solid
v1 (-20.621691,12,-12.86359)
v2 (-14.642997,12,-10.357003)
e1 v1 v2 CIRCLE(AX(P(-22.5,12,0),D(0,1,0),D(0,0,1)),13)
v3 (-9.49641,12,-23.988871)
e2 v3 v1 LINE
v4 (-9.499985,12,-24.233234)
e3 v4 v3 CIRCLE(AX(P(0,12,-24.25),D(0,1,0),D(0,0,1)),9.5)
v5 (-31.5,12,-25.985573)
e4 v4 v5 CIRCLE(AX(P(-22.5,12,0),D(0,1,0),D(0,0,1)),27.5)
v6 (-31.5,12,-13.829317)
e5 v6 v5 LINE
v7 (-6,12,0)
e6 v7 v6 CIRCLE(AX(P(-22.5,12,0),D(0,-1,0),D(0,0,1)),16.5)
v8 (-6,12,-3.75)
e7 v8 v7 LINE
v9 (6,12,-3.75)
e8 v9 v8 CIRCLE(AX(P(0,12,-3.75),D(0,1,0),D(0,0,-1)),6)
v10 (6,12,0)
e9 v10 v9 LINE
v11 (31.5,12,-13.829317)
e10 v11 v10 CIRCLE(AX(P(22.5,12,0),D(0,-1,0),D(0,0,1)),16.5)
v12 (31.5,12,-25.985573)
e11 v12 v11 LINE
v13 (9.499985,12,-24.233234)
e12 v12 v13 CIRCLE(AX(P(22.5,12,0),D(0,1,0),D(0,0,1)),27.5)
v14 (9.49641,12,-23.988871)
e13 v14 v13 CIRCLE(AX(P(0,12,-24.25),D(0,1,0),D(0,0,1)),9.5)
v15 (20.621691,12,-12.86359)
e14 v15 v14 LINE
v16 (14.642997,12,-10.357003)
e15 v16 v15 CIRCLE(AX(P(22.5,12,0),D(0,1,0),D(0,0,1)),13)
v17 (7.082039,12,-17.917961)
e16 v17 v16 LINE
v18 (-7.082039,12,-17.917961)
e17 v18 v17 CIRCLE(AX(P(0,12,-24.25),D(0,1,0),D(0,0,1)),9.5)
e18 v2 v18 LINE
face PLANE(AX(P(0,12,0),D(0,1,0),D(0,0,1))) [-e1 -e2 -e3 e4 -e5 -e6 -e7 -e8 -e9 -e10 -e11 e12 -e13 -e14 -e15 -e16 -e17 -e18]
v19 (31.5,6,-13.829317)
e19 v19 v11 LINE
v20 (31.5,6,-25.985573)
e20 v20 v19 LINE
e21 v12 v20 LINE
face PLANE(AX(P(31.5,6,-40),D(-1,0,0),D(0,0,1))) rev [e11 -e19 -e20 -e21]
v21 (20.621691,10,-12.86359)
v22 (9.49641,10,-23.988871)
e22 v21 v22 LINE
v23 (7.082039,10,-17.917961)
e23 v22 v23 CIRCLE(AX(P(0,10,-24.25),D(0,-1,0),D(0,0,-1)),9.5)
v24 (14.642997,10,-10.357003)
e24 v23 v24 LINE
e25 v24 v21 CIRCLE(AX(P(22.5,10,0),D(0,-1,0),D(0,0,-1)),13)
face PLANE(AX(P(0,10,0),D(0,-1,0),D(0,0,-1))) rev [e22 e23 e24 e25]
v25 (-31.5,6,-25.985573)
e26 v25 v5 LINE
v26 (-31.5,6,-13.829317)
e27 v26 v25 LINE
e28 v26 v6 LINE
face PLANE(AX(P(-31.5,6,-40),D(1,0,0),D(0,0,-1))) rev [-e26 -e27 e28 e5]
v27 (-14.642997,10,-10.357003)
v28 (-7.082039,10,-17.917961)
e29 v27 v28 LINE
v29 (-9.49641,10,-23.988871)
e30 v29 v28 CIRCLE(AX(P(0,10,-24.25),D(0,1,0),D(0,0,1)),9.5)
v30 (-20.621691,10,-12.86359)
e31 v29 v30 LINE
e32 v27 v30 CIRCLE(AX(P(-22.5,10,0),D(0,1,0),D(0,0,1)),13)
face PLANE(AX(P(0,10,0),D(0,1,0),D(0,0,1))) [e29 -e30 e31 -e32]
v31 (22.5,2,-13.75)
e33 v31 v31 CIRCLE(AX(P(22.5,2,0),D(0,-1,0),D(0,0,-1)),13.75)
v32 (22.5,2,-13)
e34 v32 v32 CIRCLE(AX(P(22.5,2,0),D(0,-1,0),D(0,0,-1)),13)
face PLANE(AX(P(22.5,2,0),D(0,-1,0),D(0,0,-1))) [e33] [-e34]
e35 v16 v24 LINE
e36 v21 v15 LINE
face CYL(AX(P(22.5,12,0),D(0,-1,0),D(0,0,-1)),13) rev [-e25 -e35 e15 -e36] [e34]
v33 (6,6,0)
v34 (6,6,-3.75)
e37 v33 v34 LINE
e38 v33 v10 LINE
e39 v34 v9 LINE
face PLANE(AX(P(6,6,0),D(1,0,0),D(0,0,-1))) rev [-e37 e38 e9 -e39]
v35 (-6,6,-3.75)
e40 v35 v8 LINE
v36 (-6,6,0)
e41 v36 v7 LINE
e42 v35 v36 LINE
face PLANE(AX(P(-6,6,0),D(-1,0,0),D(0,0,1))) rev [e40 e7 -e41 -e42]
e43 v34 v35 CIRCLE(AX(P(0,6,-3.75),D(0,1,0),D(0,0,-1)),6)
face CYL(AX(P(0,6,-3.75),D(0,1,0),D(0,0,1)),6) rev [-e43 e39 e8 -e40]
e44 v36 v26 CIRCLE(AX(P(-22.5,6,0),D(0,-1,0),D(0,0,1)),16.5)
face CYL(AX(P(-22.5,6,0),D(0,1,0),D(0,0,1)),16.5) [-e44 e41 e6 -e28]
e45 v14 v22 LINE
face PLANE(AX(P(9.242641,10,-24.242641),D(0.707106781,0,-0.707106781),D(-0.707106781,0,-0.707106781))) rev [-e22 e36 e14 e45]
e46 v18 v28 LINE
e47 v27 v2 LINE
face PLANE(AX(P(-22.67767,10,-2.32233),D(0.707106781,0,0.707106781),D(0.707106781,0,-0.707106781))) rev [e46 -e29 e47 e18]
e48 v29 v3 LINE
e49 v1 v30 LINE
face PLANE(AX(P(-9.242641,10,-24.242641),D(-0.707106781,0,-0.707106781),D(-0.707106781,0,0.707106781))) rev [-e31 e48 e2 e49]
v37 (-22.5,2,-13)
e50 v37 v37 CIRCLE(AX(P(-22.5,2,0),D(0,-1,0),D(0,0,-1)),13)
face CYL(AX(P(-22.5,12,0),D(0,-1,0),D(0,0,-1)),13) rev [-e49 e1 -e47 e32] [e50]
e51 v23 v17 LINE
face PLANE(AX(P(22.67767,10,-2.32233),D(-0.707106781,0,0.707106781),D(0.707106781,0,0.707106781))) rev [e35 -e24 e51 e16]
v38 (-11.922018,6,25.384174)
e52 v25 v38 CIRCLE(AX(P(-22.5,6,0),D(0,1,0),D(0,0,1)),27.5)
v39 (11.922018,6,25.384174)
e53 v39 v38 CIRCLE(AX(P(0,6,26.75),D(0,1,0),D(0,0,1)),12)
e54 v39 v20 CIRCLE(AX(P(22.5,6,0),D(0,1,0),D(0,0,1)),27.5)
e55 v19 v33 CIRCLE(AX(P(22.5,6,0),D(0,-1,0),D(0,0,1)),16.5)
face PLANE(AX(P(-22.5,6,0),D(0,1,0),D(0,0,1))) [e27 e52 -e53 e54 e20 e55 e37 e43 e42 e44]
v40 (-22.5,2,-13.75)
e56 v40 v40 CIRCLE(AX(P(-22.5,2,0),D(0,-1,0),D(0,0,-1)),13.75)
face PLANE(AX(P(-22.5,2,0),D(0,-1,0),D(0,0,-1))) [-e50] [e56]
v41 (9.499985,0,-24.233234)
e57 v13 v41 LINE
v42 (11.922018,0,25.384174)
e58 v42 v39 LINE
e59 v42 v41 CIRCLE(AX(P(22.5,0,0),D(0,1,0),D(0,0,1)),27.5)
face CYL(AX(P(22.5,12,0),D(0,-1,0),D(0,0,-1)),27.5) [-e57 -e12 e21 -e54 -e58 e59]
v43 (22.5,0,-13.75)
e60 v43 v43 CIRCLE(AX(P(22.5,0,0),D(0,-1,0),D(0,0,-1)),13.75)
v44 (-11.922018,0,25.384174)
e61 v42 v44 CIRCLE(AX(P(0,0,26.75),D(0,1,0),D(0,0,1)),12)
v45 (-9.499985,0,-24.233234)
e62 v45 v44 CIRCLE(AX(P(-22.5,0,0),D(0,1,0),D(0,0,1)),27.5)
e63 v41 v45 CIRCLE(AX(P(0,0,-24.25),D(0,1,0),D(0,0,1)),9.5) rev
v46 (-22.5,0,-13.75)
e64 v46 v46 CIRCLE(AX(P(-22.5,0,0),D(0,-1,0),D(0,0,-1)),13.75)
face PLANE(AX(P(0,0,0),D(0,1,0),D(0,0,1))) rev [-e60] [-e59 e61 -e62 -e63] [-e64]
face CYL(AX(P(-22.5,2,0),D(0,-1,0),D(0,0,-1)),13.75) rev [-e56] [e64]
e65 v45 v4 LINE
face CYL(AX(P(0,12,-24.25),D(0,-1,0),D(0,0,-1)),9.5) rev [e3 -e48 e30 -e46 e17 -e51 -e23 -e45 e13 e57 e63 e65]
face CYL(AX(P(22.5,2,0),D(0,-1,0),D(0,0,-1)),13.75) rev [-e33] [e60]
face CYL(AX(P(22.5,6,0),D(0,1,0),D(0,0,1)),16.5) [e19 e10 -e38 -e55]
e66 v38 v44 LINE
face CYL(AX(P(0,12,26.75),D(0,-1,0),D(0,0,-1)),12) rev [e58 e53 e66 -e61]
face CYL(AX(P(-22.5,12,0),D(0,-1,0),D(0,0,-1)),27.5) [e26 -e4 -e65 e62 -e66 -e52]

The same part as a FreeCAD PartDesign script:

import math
import FreeCAD as App
import Part
import Sketcher

V = App.Vector

doc = App.newDocument("Part")
body = doc.addObject("PartDesign::Body", "Body")

sketch1 = doc.addObject("Sketcher::SketchObject", "Sketch")
body.addObject(sketch1)
sketch1.AttachmentSupport = (doc.XZ_Plane, [""])
sketch1.MapMode = "FlatFace"
sketch1.addGeometry(Part.ArcOfCircle(Part.Circle(V(22.5, 0, 0), V(0, 0, 1), 27.5), math.radians(-144.903199), math.radians(144.903199)), False)
sketch1.addGeometry(Part.ArcOfCircle(Part.Circle(V(-22.5, 0, 0), V(0, 0, 1), 27.5), math.radians(35.096801), math.radians(324.903199)), False)
sketch1.addConstraint(Sketcher.Constraint("Coincident", 0, 1, 1, 2))
sketch1.addConstraint(Sketcher.Constraint("Coincident", 1, 1, 0, 2))
sketch1.addConstraint(Sketcher.Constraint("Equal", 0, 1))
sketch1.addConstraint(Sketcher.Constraint("Symmetric", 0, 3, 1, 3, -1, 1))
sketch1.addConstraint(Sketcher.Constraint("PointOnObject", 0, 3, -1))
sketch1.addConstraint(Sketcher.Constraint("Radius", 0, 27.5))
sketch1.addConstraint(Sketcher.Constraint("DistanceX", 1, 3, 0, 3, 45.0))
pad1 = doc.addObject("PartDesign::Pad", "Pad")
body.addObject(pad1)
pad1.Profile = sketch1
pad1.Length = 12
pad1.Reversed = True

sketch2 = doc.addObject("Sketcher::SketchObject", "Sketch001")
body.addObject(sketch2)
sketch2.AttachmentSupport = (doc.XZ_Plane, [""])
sketch2.MapMode = "FlatFace"
sketch2.addGeometry(Part.Circle(V(0, -24.25, 0), V(0, 0, 1), 9.5), False)
sketch2.addGeometry(Part.Circle(V(0, 26.75, 0), V(0, 0, 1), 12), False)
sketch2.addConstraint(Sketcher.Constraint("PointOnObject", 0, 3, -2))
sketch2.addConstraint(Sketcher.Constraint("PointOnObject", 1, 3, -2))
sketch2.addConstraint(Sketcher.Constraint("Diameter", 0, 19.0))
sketch2.addConstraint(Sketcher.Constraint("Diameter", 1, 24.0))
sketch2.addConstraint(Sketcher.Constraint("DistanceY", 0, 3, 1, 3, 51.0))
sketch2.addConstraint(Sketcher.Constraint("DistanceY", 0, 3, -1, 1, 24.25))
pocket1 = doc.addObject("PartDesign::Pocket", "Pocket")
body.addObject(pocket1)
pocket1.Profile = sketch2
pocket1.Type = "ThroughAll"

sketch3 = doc.addObject("Sketcher::SketchObject", "Sketch002")
body.addObject(sketch3)
sketch3.AttachmentSupport = (doc.XZ_Plane, [""])
sketch3.MapMode = "FlatFace"
sketch3.AttachmentOffset = App.Placement(V(0, 0, -12), App.Rotation())
sketch3.addGeometry(Part.LineSegment(V(-6, -3.75, 0), V(-6, 0, 0)), False)
sketch3.addGeometry(Part.ArcOfCircle(Part.Circle(V(-22.5, 0, 0), V(0, 0, 1), 16.5), math.radians(0), math.radians(236.944269)), False)
sketch3.addGeometry(Part.LineSegment(V(-31.5, -13.829317, 0), V(-31.5, -40, 0)), False)
sketch3.addGeometry(Part.LineSegment(V(-31.5, -40, 0), V(-71.5, -40, 0)), False)
sketch3.addGeometry(Part.LineSegment(V(-71.5, -40, 0), V(-71.5, 30, 0)), False)
sketch3.addGeometry(Part.LineSegment(V(-71.5, 30, 0), V(71.5, 30, 0)), False)
sketch3.addGeometry(Part.LineSegment(V(71.5, 30, 0), V(71.5, -40, 0)), False)
sketch3.addGeometry(Part.LineSegment(V(71.5, -40, 0), V(31.5, -40, 0)), False)
sketch3.addGeometry(Part.LineSegment(V(31.5, -40, 0), V(31.5, -13.829317, 0)), False)
sketch3.addGeometry(Part.ArcOfCircle(Part.Circle(V(22.5, 0, 0), V(0, 0, 1), 16.5), math.radians(-56.944269), math.radians(180)), False)
sketch3.addGeometry(Part.LineSegment(V(6, 0, 0), V(6, -3.75, 0)), False)
sketch3.addGeometry(Part.ArcOfCircle(Part.Circle(V(0, -3.75, 0), V(0, 0, 1), 6), math.radians(180), math.radians(360)), False)
sketch3.addConstraint(Sketcher.Constraint("Tangent", 0, 2, 1, 1))
sketch3.addConstraint(Sketcher.Constraint("Coincident", 1, 2, 2, 1))
sketch3.addConstraint(Sketcher.Constraint("Coincident", 2, 2, 3, 1))
sketch3.addConstraint(Sketcher.Constraint("Coincident", 3, 2, 4, 1))
sketch3.addConstraint(Sketcher.Constraint("Coincident", 4, 2, 5, 1))
sketch3.addConstraint(Sketcher.Constraint("Coincident", 5, 2, 6, 1))
sketch3.addConstraint(Sketcher.Constraint("Coincident", 6, 2, 7, 1))
sketch3.addConstraint(Sketcher.Constraint("Coincident", 7, 2, 8, 1))
sketch3.addConstraint(Sketcher.Constraint("Coincident", 8, 2, 9, 1))
sketch3.addConstraint(Sketcher.Constraint("Tangent", 9, 2, 10, 1))
sketch3.addConstraint(Sketcher.Constraint("Tangent", 10, 2, 11, 2))
sketch3.addConstraint(Sketcher.Constraint("Tangent", 11, 1, 0, 1))
sketch3.addConstraint(Sketcher.Constraint("Vertical", 0))
sketch3.addConstraint(Sketcher.Constraint("Vertical", 2))
sketch3.addConstraint(Sketcher.Constraint("Horizontal", 3))
sketch3.addConstraint(Sketcher.Constraint("Vertical", 4))
sketch3.addConstraint(Sketcher.Constraint("Horizontal", 5))
sketch3.addConstraint(Sketcher.Constraint("Vertical", 6))
sketch3.addConstraint(Sketcher.Constraint("Horizontal", 7))
sketch3.addConstraint(Sketcher.Constraint("Vertical", 8))
sketch3.addConstraint(Sketcher.Constraint("Vertical", 10))
sketch3.addConstraint(Sketcher.Constraint("Equal", 1, 9))
sketch3.addConstraint(Sketcher.Constraint("Symmetric", 1, 3, 9, 3, -1, 1))
sketch3.addConstraint(Sketcher.Constraint("Symmetric", 3, 2, 6, 2, -2))
sketch3.addConstraint(Sketcher.Constraint("Symmetric", 1, 2, 8, 2, -2))
sketch3.addConstraint(Sketcher.Constraint("Radius", 11, 6.0))
sketch3.addConstraint(Sketcher.Constraint("Radius", 1, 16.5))
sketch3.addConstraint(Sketcher.Constraint("DistanceX", 3, 2, 3, 1, 40.0))
sketch3.addConstraint(Sketcher.Constraint("DistanceX", 5, 1, 5, 2, 143.0))
sketch3.addConstraint(Sketcher.Constraint("DistanceY", 4, 1, 4, 2, 70.0))
sketch3.addConstraint(Sketcher.Constraint("DistanceY", 2, 2, -1, 1, 40.0))
sketch3.addConstraint(Sketcher.Constraint("DistanceY", 0, 1, 0, 2, 3.75))
pocket2 = doc.addObject("PartDesign::Pocket", "Pocket001")
body.addObject(pocket2)
pocket2.Profile = sketch3
pocket2.Length = 6
pocket2.Reversed = True

sketch4 = doc.addObject("Sketcher::SketchObject", "Sketch003")
body.addObject(sketch4)
sketch4.AttachmentSupport = (doc.XZ_Plane, [""])
sketch4.MapMode = "FlatFace"
sketch4.addGeometry(Part.Circle(V(-22.5, 0, 0), V(0, 0, 1), 13), False)
sketch4.addGeometry(Part.Circle(V(22.5, 0, 0), V(0, 0, 1), 13), False)
sketch4.addConstraint(Sketcher.Constraint("Equal", 0, 1))
sketch4.addConstraint(Sketcher.Constraint("Symmetric", 0, 3, 1, 3, -1, 1))
sketch4.addConstraint(Sketcher.Constraint("PointOnObject", 0, 3, -1))
sketch4.addConstraint(Sketcher.Constraint("Diameter", 0, 26.0))
sketch4.addConstraint(Sketcher.Constraint("DistanceX", 0, 3, 1, 3, 45.0))
pocket3 = doc.addObject("PartDesign::Pocket", "Pocket002")
body.addObject(pocket3)
pocket3.Profile = sketch4
pocket3.Type = "ThroughAll"

sketch5 = doc.addObject("Sketcher::SketchObject", "Sketch004")
body.addObject(sketch5)
sketch5.AttachmentSupport = (doc.XZ_Plane, [""])
sketch5.MapMode = "FlatFace"
sketch5.addGeometry(Part.Circle(V(-22.5, 0, 0), V(0, 0, 1), 13.75), False)
sketch5.addGeometry(Part.Circle(V(22.5, 0, 0), V(0, 0, 1), 13.75), False)
sketch5.addConstraint(Sketcher.Constraint("Equal", 0, 1))
sketch5.addConstraint(Sketcher.Constraint("Symmetric", 0, 3, 1, 3, -1, 1))
sketch5.addConstraint(Sketcher.Constraint("PointOnObject", 0, 3, -1))
sketch5.addConstraint(Sketcher.Constraint("Diameter", 0, 27.5))
sketch5.addConstraint(Sketcher.Constraint("DistanceX", 0, 3, 1, 3, 45.0))
pocket4 = doc.addObject("PartDesign::Pocket", "Pocket003")
body.addObject(pocket4)
pocket4.Profile = sketch5
pocket4.Length = 2

sketch6 = doc.addObject("Sketcher::SketchObject", "Sketch005")
body.addObject(sketch6)
sketch6.AttachmentSupport = (doc.XZ_Plane, [""])
sketch6.MapMode = "FlatFace"
sketch6.AttachmentOffset = App.Placement(V(0, 0, -12), App.Rotation())
sketch6.addGeometry(Part.LineSegment(V(-9.242641, -24.242641, 0), V(-26.92031, -6.564971, 0)), False)
sketch6.addGeometry(Part.LineSegment(V(-26.92031, -6.564971, 0), V(-22.67767, -2.32233, 0)), False)
sketch6.addGeometry(Part.LineSegment(V(-22.67767, -2.32233, 0), V(-5, -20, 0)), False)
sketch6.addGeometry(Part.LineSegment(V(-5, -20, 0), V(-9.242641, -24.242641, 0)), False)
sketch6.addGeometry(Part.LineSegment(V(26.92031, -6.564971, 0), V(9.242641, -24.242641, 0)), False)
sketch6.addGeometry(Part.LineSegment(V(9.242641, -24.242641, 0), V(5, -20, 0)), False)
sketch6.addGeometry(Part.LineSegment(V(5, -20, 0), V(22.67767, -2.32233, 0)), False)
sketch6.addGeometry(Part.LineSegment(V(22.67767, -2.32233, 0), V(26.92031, -6.564971, 0)), False)
sketch6.addConstraint(Sketcher.Constraint("Coincident", 0, 2, 1, 1))
sketch6.addConstraint(Sketcher.Constraint("Coincident", 1, 2, 2, 1))
sketch6.addConstraint(Sketcher.Constraint("Coincident", 2, 2, 3, 1))
sketch6.addConstraint(Sketcher.Constraint("Coincident", 3, 2, 0, 1))
sketch6.addConstraint(Sketcher.Constraint("Coincident", 4, 2, 5, 1))
sketch6.addConstraint(Sketcher.Constraint("Coincident", 5, 2, 6, 1))
sketch6.addConstraint(Sketcher.Constraint("Coincident", 6, 2, 7, 1))
sketch6.addConstraint(Sketcher.Constraint("Coincident", 7, 2, 4, 1))
sketch6.addConstraint(Sketcher.Constraint("Symmetric", 3, 2, 4, 2, -2))
sketch6.addConstraint(Sketcher.Constraint("Symmetric", 2, 2, 5, 2, -2))
sketch6.addConstraint(Sketcher.Constraint("Symmetric", 1, 2, 6, 2, -2))
sketch6.addConstraint(Sketcher.Constraint("Symmetric", 0, 2, 7, 2, -2))
sketch6.addConstraint(Sketcher.Constraint("Perpendicular", 0, 1))
sketch6.addConstraint(Sketcher.Constraint("Perpendicular", 1, 2))
sketch6.addConstraint(Sketcher.Constraint("Perpendicular", 2, 3))
sketch6.addConstraint(Sketcher.Constraint("Parallel", 3, 4))
sketch6.addConstraint(Sketcher.Constraint("Distance", 0, 25.0))
sketch6.addConstraint(Sketcher.Constraint("Distance", 1, 6.0))
sketch6.addConstraint(Sketcher.Constraint("DistanceX", 2, 2, -1, 1, 5.0))
sketch6.addConstraint(Sketcher.Constraint("DistanceY", 2, 2, -1, 1, 20.0))
pocket5 = doc.addObject("PartDesign::Pocket", "Pocket004")
body.addObject(pocket5)
pocket5.Profile = sketch6
pocket5.Length = 2
pocket5.Reversed = True

doc.recompute()
